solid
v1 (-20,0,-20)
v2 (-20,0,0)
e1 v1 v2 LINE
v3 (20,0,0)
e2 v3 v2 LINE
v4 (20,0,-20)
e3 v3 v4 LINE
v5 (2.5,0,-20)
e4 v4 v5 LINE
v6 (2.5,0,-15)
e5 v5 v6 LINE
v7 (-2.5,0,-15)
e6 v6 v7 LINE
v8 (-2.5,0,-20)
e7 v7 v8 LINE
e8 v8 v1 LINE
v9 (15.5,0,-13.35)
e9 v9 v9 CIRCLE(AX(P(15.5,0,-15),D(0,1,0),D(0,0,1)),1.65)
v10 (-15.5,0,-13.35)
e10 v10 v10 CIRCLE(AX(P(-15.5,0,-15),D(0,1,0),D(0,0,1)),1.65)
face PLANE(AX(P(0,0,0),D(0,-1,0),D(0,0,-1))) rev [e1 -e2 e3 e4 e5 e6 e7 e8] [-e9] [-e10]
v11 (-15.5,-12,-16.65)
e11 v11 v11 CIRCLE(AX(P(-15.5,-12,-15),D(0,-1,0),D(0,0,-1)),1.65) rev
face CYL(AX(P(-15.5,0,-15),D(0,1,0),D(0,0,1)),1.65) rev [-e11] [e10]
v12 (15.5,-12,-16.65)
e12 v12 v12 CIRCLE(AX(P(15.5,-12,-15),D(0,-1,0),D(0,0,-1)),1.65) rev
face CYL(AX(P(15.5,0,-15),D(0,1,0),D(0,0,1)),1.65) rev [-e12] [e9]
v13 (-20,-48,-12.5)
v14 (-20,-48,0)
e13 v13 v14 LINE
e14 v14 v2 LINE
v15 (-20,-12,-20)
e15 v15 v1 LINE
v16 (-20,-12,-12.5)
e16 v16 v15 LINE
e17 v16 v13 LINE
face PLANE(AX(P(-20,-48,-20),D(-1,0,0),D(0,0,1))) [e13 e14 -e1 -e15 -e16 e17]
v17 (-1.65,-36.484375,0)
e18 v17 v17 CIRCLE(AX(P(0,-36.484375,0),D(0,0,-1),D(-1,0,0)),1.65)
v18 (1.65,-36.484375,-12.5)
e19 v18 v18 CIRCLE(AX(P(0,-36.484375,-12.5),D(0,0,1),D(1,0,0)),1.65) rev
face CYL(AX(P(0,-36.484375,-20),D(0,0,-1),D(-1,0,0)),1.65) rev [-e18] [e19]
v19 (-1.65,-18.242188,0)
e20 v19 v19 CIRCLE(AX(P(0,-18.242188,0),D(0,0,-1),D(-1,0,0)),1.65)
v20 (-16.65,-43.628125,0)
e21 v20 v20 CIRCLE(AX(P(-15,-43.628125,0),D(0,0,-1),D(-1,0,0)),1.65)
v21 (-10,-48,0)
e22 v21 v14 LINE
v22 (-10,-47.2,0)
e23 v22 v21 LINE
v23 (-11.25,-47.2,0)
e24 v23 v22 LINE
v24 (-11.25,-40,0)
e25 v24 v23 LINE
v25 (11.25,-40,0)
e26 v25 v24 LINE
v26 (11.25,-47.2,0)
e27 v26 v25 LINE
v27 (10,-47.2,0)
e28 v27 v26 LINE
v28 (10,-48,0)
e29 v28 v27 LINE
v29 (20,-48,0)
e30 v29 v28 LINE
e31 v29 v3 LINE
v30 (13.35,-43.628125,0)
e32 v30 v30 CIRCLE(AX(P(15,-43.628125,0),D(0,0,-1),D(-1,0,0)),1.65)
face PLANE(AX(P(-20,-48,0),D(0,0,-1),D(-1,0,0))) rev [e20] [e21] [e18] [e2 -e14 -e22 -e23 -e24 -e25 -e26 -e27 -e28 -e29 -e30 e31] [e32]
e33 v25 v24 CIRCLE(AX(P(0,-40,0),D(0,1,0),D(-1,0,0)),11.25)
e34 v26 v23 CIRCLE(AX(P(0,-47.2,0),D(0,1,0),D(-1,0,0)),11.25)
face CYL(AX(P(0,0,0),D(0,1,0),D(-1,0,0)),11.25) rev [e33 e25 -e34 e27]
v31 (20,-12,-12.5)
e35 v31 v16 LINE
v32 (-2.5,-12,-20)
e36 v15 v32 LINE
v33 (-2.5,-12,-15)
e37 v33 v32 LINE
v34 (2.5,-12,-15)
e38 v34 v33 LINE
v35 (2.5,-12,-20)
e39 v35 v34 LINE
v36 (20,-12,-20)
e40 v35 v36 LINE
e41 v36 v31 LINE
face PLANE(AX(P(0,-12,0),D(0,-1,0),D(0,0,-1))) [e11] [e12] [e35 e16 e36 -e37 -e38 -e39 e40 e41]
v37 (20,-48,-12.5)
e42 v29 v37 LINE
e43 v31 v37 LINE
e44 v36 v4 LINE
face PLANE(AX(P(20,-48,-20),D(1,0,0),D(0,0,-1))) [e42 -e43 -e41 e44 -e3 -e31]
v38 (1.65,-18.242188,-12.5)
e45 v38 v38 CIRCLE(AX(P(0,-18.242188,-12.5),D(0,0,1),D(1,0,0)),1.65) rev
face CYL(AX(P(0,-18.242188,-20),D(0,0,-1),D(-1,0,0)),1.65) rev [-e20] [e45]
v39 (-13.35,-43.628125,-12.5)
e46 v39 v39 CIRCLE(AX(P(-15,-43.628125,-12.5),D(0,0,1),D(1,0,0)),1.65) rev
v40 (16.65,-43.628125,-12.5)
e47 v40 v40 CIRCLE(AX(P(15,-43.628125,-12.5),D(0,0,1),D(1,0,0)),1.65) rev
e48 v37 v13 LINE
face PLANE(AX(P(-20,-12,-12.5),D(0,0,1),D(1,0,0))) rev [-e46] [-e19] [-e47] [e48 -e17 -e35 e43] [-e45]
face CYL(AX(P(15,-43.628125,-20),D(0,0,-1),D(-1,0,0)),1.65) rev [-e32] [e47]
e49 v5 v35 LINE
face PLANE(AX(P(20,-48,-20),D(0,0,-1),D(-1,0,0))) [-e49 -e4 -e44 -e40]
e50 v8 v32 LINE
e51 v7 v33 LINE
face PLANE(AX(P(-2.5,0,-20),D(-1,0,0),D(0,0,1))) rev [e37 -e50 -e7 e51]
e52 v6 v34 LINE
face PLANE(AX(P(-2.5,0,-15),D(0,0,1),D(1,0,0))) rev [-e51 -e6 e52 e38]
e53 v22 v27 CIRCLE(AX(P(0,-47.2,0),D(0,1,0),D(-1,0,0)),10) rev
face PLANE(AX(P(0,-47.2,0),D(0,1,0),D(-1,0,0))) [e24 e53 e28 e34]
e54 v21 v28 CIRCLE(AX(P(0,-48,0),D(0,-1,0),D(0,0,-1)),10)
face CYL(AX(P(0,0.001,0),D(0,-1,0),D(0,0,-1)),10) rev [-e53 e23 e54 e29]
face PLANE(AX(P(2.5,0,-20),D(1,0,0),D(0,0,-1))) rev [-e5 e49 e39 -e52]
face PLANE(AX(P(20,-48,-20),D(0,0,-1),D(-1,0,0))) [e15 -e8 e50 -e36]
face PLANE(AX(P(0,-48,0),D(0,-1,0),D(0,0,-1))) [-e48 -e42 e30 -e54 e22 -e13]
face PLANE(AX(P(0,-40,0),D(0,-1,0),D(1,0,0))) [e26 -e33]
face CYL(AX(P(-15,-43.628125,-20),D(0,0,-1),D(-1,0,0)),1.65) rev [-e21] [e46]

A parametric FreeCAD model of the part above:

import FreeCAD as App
import Part
import Sketcher
from FreeCAD import Vector
Q = App.Units.Quantity


def add_polygon(sketch, points):
    """Adds a closed chain of lines whose ends are joined by coincident constraints."""
    first, n = sketch.GeometryCount, len(points)
    for a, b in zip(points, points[1:] + points[:1]):
        sketch.addGeometry(Part.LineSegment(App.Vector(*a, 0), App.Vector(*b, 0)), False)
    for i in range(n):
        sketch.addConstraint(Sketcher.Constraint("Coincident", first + i, 2, first + (i + 1) % n, 1))

doc = App.newDocument("Part")
body = doc.addObject("PartDesign::Body", "Body")

# Sketch on XZ plane
sketch1 = body.newObject("Sketcher::SketchObject", "Sketch")
sketch1.AttachmentSupport = (doc.getObject("XZ_Plane"), [""])
sketch1.MapMode = "FlatFace"
add_polygon(sketch1, [(-20, -20), (-20, 20), (20, 20), (20, -20)])  # lines 0-3
sketch1.addConstraint(Sketcher.Constraint("Vertical", 0))
sketch1.addConstraint(Sketcher.Constraint("Horizontal", 1))
sketch1.addConstraint(Sketcher.Constraint("Vertical", 2))
sketch1.addConstraint(Sketcher.Constraint("Horizontal", 3))
sketch1.addConstraint(Sketcher.Constraint("Symmetric", 0, 2, 2, 2, -1, 1))
sketch1.addConstraint(Sketcher.Constraint("Equal", 3, 0))
sketch1.addConstraint(Sketcher.Constraint("DistanceX", 1, 1, 1, 2, Q("40 mm")))
pad1 = body.newObject("PartDesign::Pad", "Pad")
pad1.Profile = sketch1
pad1.Length = 48

# Sketch on XZ plane
sketch2 = body.newObject("Sketcher::SketchObject", "Sketch001")
sketch2.AttachmentSupport = (doc.getObject("XZ_Plane"), [""])
sketch2.MapMode = "FlatFace"
sketch2.addGeometry(Part.Circle(Vector(-15.5, -15, 0), Vector(0, 0, 1), 1.65), False)
sketch2.addGeometry(Part.Circle(Vector(15.5, -15, 0), Vector(0, 0, 1), 1.65), False)
sketch2.addGeometry(Part.Circle(Vector(15.5, 15, 0), Vector(0, 0, 1), 1.65), False)
sketch2.addGeometry(Part.Circle(Vector(-15.5, 15, 0), Vector(0, 0, 1), 1.65), False)
sketch2.addConstraint(Sketcher.Constraint("Equal", 0, 1))
sketch2.addConstraint(Sketcher.Constraint("Equal", 1, 2))
sketch2.addConstraint(Sketcher.Constraint("Equal", 2, 3))
sketch2.addConstraint(Sketcher.Constraint("Symmetric", 0, 3, 2, 3, -1, 1))
sketch2.addConstraint(Sketcher.Constraint("Symmetric", 1, 3, 3, 3, -1, 1))
sketch2.addConstraint(Sketcher.Constraint("Symmetric", 0, 3, 1, 3, -2))
sketch2.addConstraint(Sketcher.Constraint("Diameter", 0, Q("3.3 mm")))
sketch2.addConstraint(Sketcher.Constraint("DistanceY", 0, 3, -1, 1, Q("15 mm")))
sketch2.addConstraint(Sketcher.Constraint("DistanceX", 0, 3, 1, 3, Q("31 mm")))
doc.recompute()
hole = body.newObject("PartDesign::Hole", "Hole")
hole.Profile = sketch2
hole.ThreadType = "None"
hole.Diameter = 3.3
hole.DepthType = "ThroughAll"
hole.Reversed = True

# Sketch on XZ plane
sketch3 = body.newObject("Sketcher::SketchObject", "Sketch002")
sketch3.AttachmentSupport = (doc.getObject("XZ_Plane"), [""])
sketch3.MapMode = "FlatFace"
add_polygon(sketch3, [(-20, 0), (-20, 20), (20, 20), (20, 0)])  # lines 0-3
sketch3.addConstraint(Sketcher.Constraint("Vertical", 0))
sketch3.addConstraint(Sketcher.Constraint("Horizontal", 1))
sketch3.addConstraint(Sketcher.Constraint("Vertical", 2))
sketch3.addConstraint(Sketcher.Constraint("Horizontal", 3))
sketch3.addConstraint(Sketcher.Constraint("Symmetric", 2, 2, 3, 2, -1, 1))
sketch3.addConstraint(Sketcher.Constraint("DistanceX", 1, 1, 1, 2, Q("40 mm")))
sketch3.addConstraint(Sketcher.Constraint("DistanceY", 0, 1, 0, 2, Q("20 mm")))
pocket1 = body.newObject("PartDesign::Pocket", "Pocket")
pocket1.Profile = sketch3
pocket1.Type = "ThroughAll"
pocket1.Reversed = True

# Sketch on XY plane
sketch4 = body.newObject("Sketcher::SketchObject", "Sketch003")
sketch4.AttachmentSupport = (doc.getObject("XY_Plane"), [""])
sketch4.MapMode = "FlatFace"
add_polygon(sketch4, [(0, -40), (0, -47.2), (11.25, -47.2), (11.25, -40)])  # lines 0-3
sketch4.addConstraint(Sketcher.Constraint("Vertical", 0))
sketch4.addConstraint(Sketcher.Constraint("Horizontal", 1))
sketch4.addConstraint(Sketcher.Constraint("Vertical", 2))
sketch4.addConstraint(Sketcher.Constraint("Horizontal", 3))
sketch4.addConstraint(Sketcher.Constraint("PointOnObject", 0, 2, -2))
sketch4.addConstraint(Sketcher.Constraint("DistanceY", 0, 2, 0, 1, Q("7.2 mm")))
sketch4.addConstraint(Sketcher.Constraint("DistanceY", 2, 2, -1, 1, Q("40 mm")))
sketch4.addConstraint(Sketcher.Constraint("DistanceX", 1, 1, 1, 2, Q("11.25 mm")))
groove = body.newObject("PartDesign::Groove", "Groove")
groove.Profile = sketch4
groove.ReferenceAxis = (sketch4, ["V_Axis"])
groove.Angle = 360

# Sketch on XZ plane
sketch5 = body.newObject("Sketcher::SketchObject", "Sketch004")
sketch5.AttachmentSupport = (doc.getObject("XZ_Plane"), [""])
sketch5.MapMode = "FlatFace"
sketch5.AttachmentOffset = App.Placement(Vector(0, 0, 48), App.Rotation())
sketch5.addGeometry(Part.Circle(Vector(0, 0, 0), Vector(0, 0, 1), 10), False)
sketch5.addConstraint(Sketcher.Constraint("Coincident", 0, 3, -1, 1))
sketch5.addConstraint(Sketcher.Constraint("Diameter", 0, Q("20 mm")))
pocket2 = body.newObject("PartDesign::Pocket", "Pocket001")
pocket2.Profile = sketch5
pocket2.Type = "UpToFirst"

# Sketch on XY plane
sketch6 = body.newObject("Sketcher::SketchObject", "Sketch005")
sketch6.AttachmentSupport = (doc.getObject("XY_Plane"), [""])
sketch6.MapMode = "FlatFace"
sketch6.AttachmentOffset = App.Placement(Vector(0, 0, -20), App.Rotation())
sketch6.addGeometry(Part.Circle(Vector(-15, -43.628125, 0), Vector(0, 0, 1), 1.65), False)
sketch6.addGeometry(Part.Circle(Vector(15, -43.628125, 0), Vector(0, 0, 1), 1.65), False)
sketch6.addGeometry(Part.Circle(Vector(0, -36.484375, 0), Vector(0, 0, 1), 1.65), False)
sketch6.addGeometry(Part.Circle(Vector(0, -18.242188, 0), Vector(0, 0, 1), 1.65), False)
sketch6.addConstraint(Sketcher.Constraint("Equal", 0, 1))
sketch6.addConstraint(Sketcher.Constraint("Equal", 1, 2))
sketch6.addConstraint(Sketcher.Constraint("Equal", 2, 3))
sketch6.addConstraint(Sketcher.Constraint("Symmetric", 0, 3, 1, 3, -2))
sketch6.addConstraint(Sketcher.Constraint("PointOnObject", 2, 3, -2))
sketch6.addConstraint(Sketcher.Constraint("PointOnObject", 3, 3, -2))
sketch6.addConstraint(Sketcher.Constraint("Diameter", 0, Q("3.3 mm")))
sketch6.addConstraint(Sketcher.Constraint("DistanceX", 0, 3, -1, 1, Q("15 mm")))
sketch6.addConstraint(Sketcher.Constraint("DistanceY", 0, 3, 2, 3, Q("7.14375 mm")))
sketch6.addConstraint(Sketcher.Constraint("DistanceY", 0, 3, -1, 1, Q("43.628125 mm")))
sketch6.addConstraint(Sketcher.Constraint("DistanceY", 3, 3, -1, 1, Q("18.242188 mm")))
doc.recompute()
hole2 = body.newObject("PartDesign::Hole", "Hole001")
hole2.Profile = sketch6
hole2.ThreadType = "None"
hole2.Diameter = 3.3
hole2.DepthType = "ThroughAll"
hole2.Reversed = True

# Sketch on XZ plane
sketch7 = body.newObject("Sketcher::SketchObject", "Sketch006")
sketch7.AttachmentSupport = (doc.getObject("XZ_Plane"), [""])
sketch7.MapMode = "FlatFace"
sketch7.AttachmentOffset = App.Placement(Vector(0, 0, 48), App.Rotation())
add_polygon(sketch7, [(-20, -12.5), (-20, -20), (20, -20), (20, -12.5)])  # lines 0-3
sketch7.addConstraint(Sketcher.Constraint("Vertical", 0))
sketch7.addConstraint(Sketcher.Constraint("Horizontal", 1))
sketch7.addConstraint(Sketcher.Constraint("Vertical", 2))
sketch7.addConstraint(Sketcher.Constraint("Horizontal", 3))
sketch7.addConstraint(Sketcher.Constraint("DistanceX", 1, 1, 1, 2, Q("40 mm")))
sketch7.addConstraint(Sketcher.Constraint("DistanceY", 0, 2, 0, 1, Q("7.5 mm")))
sketch7.addConstraint(Sketcher.Constraint("DistanceX", 0, 2, -1, 1, Q("20 mm")))
sketch7.addConstraint(Sketcher.Constraint("DistanceY", 0, 2, -1, 1, Q("20 mm")))
pocket3 = body.newObject("PartDesign::Pocket", "Pocket002")
pocket3.Profile = sketch7
pocket3.Length = 36

# Sketch on XZ plane
sketch8 = body.newObject("Sketcher::SketchObject", "Sketch007")
sketch8.AttachmentSupport = (doc.getObject("XZ_Plane"), [""])
sketch8.MapMode = "FlatFace"
sketch8.AttachmentOffset = App.Placement(Vector(0, 0, 12), App.Rotation())
add_polygon(sketch8, [(-2.5, -15), (-2.5, -20), (2.5, -20), (2.5, -15)])  # lines 0-3
sketch8.addConstraint(Sketcher.Constraint("Vertical", 0))
sketch8.addConstraint(Sketcher.Constraint("Horizontal", 1))
sketch8.addConstraint(Sketcher.Constraint("Vertical", 2))
sketch8.addConstraint(Sketcher.Constraint("Horizontal", 3))
sketch8.addConstraint(Sketcher.Constraint("Equal", 3, 0))
sketch8.addConstraint(Sketcher.Constraint("DistanceX", 1, 1, 1, 2, Q("5 mm")))
sketch8.addConstraint(Sketcher.Constraint("DistanceY", 0, 2, -1, 1, Q("20 mm")))
sketch8.addConstraint(Sketcher.Constraint("DistanceX", 0, 2, -1, 1, Q("2.5 mm")))
pocket4 = body.newObject("PartDesign::Pocket", "Pocket003")
pocket4.Profile = sketch8
pocket4.Type = "ThroughAll"

doc.recompute()
